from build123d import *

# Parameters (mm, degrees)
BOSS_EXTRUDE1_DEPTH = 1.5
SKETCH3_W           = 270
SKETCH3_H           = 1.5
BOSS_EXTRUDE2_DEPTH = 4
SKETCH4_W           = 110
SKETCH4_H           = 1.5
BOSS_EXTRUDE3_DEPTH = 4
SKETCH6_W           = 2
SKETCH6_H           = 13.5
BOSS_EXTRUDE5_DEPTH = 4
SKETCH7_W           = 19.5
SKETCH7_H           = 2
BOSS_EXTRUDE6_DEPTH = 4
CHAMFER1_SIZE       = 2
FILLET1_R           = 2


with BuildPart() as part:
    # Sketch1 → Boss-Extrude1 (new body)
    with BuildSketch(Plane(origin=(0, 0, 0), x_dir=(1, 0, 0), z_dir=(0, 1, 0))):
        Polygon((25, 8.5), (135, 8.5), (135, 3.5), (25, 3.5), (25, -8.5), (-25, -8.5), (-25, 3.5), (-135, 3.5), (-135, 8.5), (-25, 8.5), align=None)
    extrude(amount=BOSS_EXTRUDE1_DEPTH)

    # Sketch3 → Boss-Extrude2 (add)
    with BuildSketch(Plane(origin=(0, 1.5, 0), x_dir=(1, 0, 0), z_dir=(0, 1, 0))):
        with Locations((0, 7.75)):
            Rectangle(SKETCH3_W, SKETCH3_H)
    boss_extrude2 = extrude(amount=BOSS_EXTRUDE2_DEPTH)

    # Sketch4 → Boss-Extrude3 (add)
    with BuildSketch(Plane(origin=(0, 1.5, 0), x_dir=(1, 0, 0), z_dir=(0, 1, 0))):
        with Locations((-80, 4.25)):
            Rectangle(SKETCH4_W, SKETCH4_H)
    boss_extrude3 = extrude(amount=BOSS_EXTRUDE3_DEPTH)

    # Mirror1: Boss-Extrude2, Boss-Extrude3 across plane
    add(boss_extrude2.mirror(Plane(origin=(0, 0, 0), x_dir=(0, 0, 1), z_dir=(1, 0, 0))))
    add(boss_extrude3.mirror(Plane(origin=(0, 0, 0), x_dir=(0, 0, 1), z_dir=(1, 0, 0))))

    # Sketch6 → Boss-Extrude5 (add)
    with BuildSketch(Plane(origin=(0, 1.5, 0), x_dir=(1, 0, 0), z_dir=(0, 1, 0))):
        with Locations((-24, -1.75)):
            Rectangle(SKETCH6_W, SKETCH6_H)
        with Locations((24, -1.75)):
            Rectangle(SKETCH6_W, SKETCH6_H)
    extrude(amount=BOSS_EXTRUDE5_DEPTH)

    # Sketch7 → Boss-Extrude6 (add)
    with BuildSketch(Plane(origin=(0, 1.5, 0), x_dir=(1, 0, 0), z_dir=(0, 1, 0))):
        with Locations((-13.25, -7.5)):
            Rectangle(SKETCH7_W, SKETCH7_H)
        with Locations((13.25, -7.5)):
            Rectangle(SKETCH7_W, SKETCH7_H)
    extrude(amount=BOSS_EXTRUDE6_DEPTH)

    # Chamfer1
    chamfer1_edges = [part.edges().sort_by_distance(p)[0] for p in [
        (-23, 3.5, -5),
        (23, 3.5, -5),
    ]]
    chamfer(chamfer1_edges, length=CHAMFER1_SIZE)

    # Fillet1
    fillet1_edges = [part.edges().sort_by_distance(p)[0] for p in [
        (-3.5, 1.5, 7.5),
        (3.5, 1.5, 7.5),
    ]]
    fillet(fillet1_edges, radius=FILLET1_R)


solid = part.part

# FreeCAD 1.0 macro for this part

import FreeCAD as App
import Part
import Sketcher
from FreeCAD import Vector
Q = App.Units.Quantity


def edges_at(feature, points):
    """Names of the edges that pass closest to the given points."""
    edges = feature.Shape.Edges
    near = lambda p: min(range(len(edges)), key=lambda i: edges[i].distToShape(Part.Vertex(*p))[0])
    return sorted({f"Edge{near(p) + 1}" for p in points})

doc = App.newDocument("Part")
params = doc.addObject("Spreadsheet::Sheet", "Params")
for row, (alias, value) in enumerate([
    ("sketch1_width", "270 mm"),
    ("sketch1_width2", "110 mm"),
    ("sketch1_height", "5 mm"),
    ("sketch1_height2", "12 mm"),
    ("pad1_length", "1.5 mm"),
    ("sketch2_width", "270 mm"),
    ("sketch2_height", "1.5 mm"),
    ("pad2_length", "4 mm"),
    ("sketch3_width", "110 mm"),
    ("sketch3_height", "1.5 mm"),
    ("pad3_length", "4 mm"),
    ("sketch4_width", "2 mm"),
    ("sketch4_height", "13.5 mm"),
    ("pad4_length", "4 mm"),
    ("sketch5_height", "2 mm"),
    ("sketch5_width", "19.5 mm"),
    ("pad5_length", "4 mm"),
    ("chamfer_size", "2 mm"),
    ("fillet_radius", "2 mm"),
], start=1):
    params.set(f"A{row}", alias)
    params.set(f"B{row}", "=" + value)
    params.setAlias(f"B{row}", alias)

body = doc.addObject("PartDesign::Body", "Body")

# Sketch on XZ plane
sketch1 = doc.addObject("Sketcher::SketchObject", "Sketch")
body.addObject(sketch1)
sketch1.AttachmentSupport = (doc.XZ_Plane, [""])
sketch1.MapMode = "FlatFace"
sketch1.addGeometry([
    Part.LineSegment(Vector(135, -8, 0), Vector(-135, -8, 0)),  # 0
    Part.LineSegment(Vector(-135, -8, 0), Vector(-135, -4, 0)),  # 1
    Part.LineSegment(Vector(-135, -4, 0), Vector(-25, -4, 0)),  # 2
    Part.LineSegment(Vector(-25, -4, 0), Vector(-25, 8, 0)),  # 3
    Part.LineSegment(Vector(-25, 8, 0), Vector(25, 8, 0)),  # 4
    Part.LineSegment(Vector(25, 8, 0), Vector(25, -4, 0)),  # 5
    Part.LineSegment(Vector(25, -4, 0), Vector(135, -4, 0)),  # 6
    Part.LineSegment(Vector(135, -4, 0), Vector(135, -8, 0)),  # 7
], False)
sketch1.addConstraint([
    Sketcher.Constraint("Coincident", 0, 2, 1, 1),
    Sketcher.Constraint("Coincident", 1, 2, 2, 1),
    Sketcher.Constraint("Coincident", 2, 2, 3, 1),
    Sketcher.Constraint("Coincident", 3, 2, 4, 1),
    Sketcher.Constraint("Coincident", 4, 2, 5, 1),
    Sketcher.Constraint("Coincident", 5, 2, 6, 1),
    Sketcher.Constraint("Coincident", 6, 2, 7, 1),
    Sketcher.Constraint("Coincident", 7, 2, 0, 1),
    Sketcher.Constraint("Horizontal", 0),
    Sketcher.Constraint("Vertical", 1),
    Sketcher.Constraint("Horizontal", 2),
    Sketcher.Constraint("Vertical", 3),
    Sketcher.Constraint("Horizontal", 4),
    Sketcher.Constraint("Vertical", 5),
    Sketcher.Constraint("Horizontal", 6),
    Sketcher.Constraint("Vertical", 7),
    Sketcher.Constraint("Symmetric", 2, 2, 5, 2, -2),
    Sketcher.Constraint("Equal", 2, 6),
    Sketcher.Constraint("DistanceX", 0, 2, 0, 1, Q("270 mm")),
    Sketcher.Constraint("DistanceX", 2, 1, 2, 2, Q("110 mm")),
    Sketcher.Constraint("DistanceY", 1, 1, 1, 2, Q("5 mm")),
    Sketcher.Constraint("DistanceY", 3, 1, 3, 2, Q("12 mm")),
    Sketcher.Constraint("DistanceY", 0, 2, -1, 1, Q("8.5 mm")),
])
sketch1.setExpression("Constraints[18]", "Params.sketch1_width")
sketch1.setExpression("Constraints[19]", "Params.sketch1_width2")
sketch1.setExpression("Constraints[20]", "Params.sketch1_height")
sketch1.setExpression("Constraints[21]", "Params.sketch1_height2")
pad1 = doc.addObject("PartDesign::Pad", "Pad")
body.addObject(pad1)
pad1.Profile = sketch1
pad1.setExpression("Length", "Params.pad1_length")
pad1.Reversed = True

# Sketch on XZ plane
sketch2 = doc.addObject("Sketcher::SketchObject", "Sketch001")
body.addObject(sketch2)
sketch2.AttachmentSupport = (doc.XZ_Plane, [""])
sketch2.MapMode = "FlatFace"
sketch2.AttachmentOffset = App.Placement(Vector(0, 0, -1.5), App.Rotation())
sketch2.addGeometry([
    Part.LineSegment(Vector(-135, -8.5, 0), Vector(-135, -7, 0)),
    Part.LineSegment(Vector(-135, -7, 0), Vector(135, -7, 0)),
    Part.LineSegment(Vector(135, -7, 0), Vector(135, -8.5, 0)),
    Part.LineSegment(Vector(135, -8.5, 0), Vector(-135, -8.5, 0)),
], False)
sketch2.addConstraint([
    Sketcher.Constraint("Coincident", 0, 2, 1, 1),
    Sketcher.Constraint("Coincident", 1, 2, 2, 1),
    Sketcher.Constraint("Coincident", 2, 2, 3, 1),
    Sketcher.Constraint("Coincident", 3, 2, 0, 1),
    Sketcher.Constraint("Vertical", 0),
    Sketcher.Constraint("Horizontal", 1),
    Sketcher.Constraint("Vertical", 2),
    Sketcher.Constraint("Horizontal", 3),
    Sketcher.Constraint("DistanceX", 1, 1, 1, 2, Q("270 mm")),
    Sketcher.Constraint("DistanceY", 0, 1, 0, 2, Q("1.5 mm")),
    Sketcher.Constraint("DistanceX", 0, 2, -1, 1, Q("135 mm")),
    Sketcher.Constraint("DistanceY", 0, 2, -1, 1, Q("7 mm")),
])
sketch2.setExpression("Constraints[8]", "Params.sketch2_width")
sketch2.setExpression("Constraints[9]", "Params.sketch2_height")
pad2 = doc.addObject("PartDesign::Pad", "Pad001")
body.addObject(pad2)
pad2.Profile = sketch2
pad2.setExpression("Length", "Params.pad2_length")
pad2.Reversed = True

# Sketch on XZ plane
sketch3 = doc.addObject("Sketcher::SketchObject", "Sketch002")
body.addObject(sketch3)
sketch3.AttachmentSupport = (doc.XZ_Plane, [""])
sketch3.MapMode = "FlatFace"
sketch3.AttachmentOffset = App.Placement(Vector(0, 0, -1.5), App.Rotation())
sketch3.addGeometry([
    Part.LineSegment(Vector(-135, -5, 0), Vector(-135, -3.5, 0)),
    Part.LineSegment(Vector(-135, -3.5, 0), Vector(-25, -3.5, 0)),
    Part.LineSegment(Vector(-25, -3.5, 0), Vector(-25, -5, 0)),
    Part.LineSegment(Vector(-25, -5, 0), Vector(-135, -5, 0)),
], False)
sketch3.addConstraint([
    Sketcher.Constraint("Coincident", 0, 2, 1, 1),
    Sketcher.Constraint("Coincident", 1, 2, 2, 1),
    Sketcher.Constraint("Coincident", 2, 2, 3, 1),
    Sketcher.Constraint("Coincident", 3, 2, 0, 1),
    Sketcher.Constraint("Vertical", 0),
    Sketcher.Constraint("Horizontal", 1),
    Sketcher.Constraint("Vertical", 2),
    Sketcher.Constraint("Horizontal", 3),
    Sketcher.Constraint("DistanceX", 1, 1, 1, 2, Q("110 mm")),
    Sketcher.Constraint("DistanceY", 0, 1, 0, 2, Q("1.5 mm")),
    Sketcher.Constraint("DistanceX", 0, 2, -1, 1, Q("135 mm")),
    Sketcher.Constraint("DistanceY", 2, 2, -1, 1, Q("5 mm")),
])
sketch3.setExpression("Constraints[8]", "Params.sketch3_width")
sketch3.setExpression("Constraints[9]", "Params.sketch3_height")
pad3 = doc.addObject("PartDesign::Pad", "Pad002")
body.addObject(pad3)
pad3.Profile = sketch3
pad3.setExpression("Length", "Params.pad3_length")
pad3.Reversed = True
doc.recompute()

mirrored = doc.addObject("PartDesign::Mirrored", "Mirrored")
body.addObject(mirrored)
mirrored.Originals = [pad2, pad3]
mirrored.MirrorPlane = (doc.YZ_Plane, [""])
body.Tip = mirrored

# Sketch on XZ plane
sketch4 = doc.addObject("Sketcher::SketchObject", "Sketch003")
body.addObject(sketch4)
sketch4.AttachmentSupport = (doc.XZ_Plane, [""])
sketch4.MapMode = "FlatFace"
sketch4.AttachmentOffset = App.Placement(Vector(0, 0, -1.5), App.Rotation())
sketch4.addGeometry([
    Part.LineSegment(Vector(-25, -5, 0), Vector(-25, 8.5, 0)),  # 0
    Part.LineSegment(Vector(-25, 8.5, 0), Vector(-23, 8.5, 0)),  # 1
    Part.LineSegment(Vector(-23, 8.5, 0), Vector(-23, -5, 0)),  # 2
    Part.LineSegment(Vector(-23, -5, 0), Vector(-25, -5, 0)),  # 3
    Part.LineSegment(Vector(23, -5, 0), Vector(23, 8.5, 0)),  # 4
    Part.LineSegment(Vector(23, 8.5, 0), Vector(25, 8.5, 0)),  # 5
    Part.LineSegment(Vector(25, 8.5, 0), Vector(25, -5, 0)),  # 6
    Part.LineSegment(Vector(25, -5, 0), Vector(23, -5, 0)),  # 7
], False)
sketch4.addConstraint([
    Sketcher.Constraint("Coincident", 0, 2, 1, 1),
    Sketcher.Constraint("Coincident", 1, 2, 2, 1),
    Sketcher.Constraint("Coincident", 2, 2, 3, 1),
    Sketcher.Constraint("Coincident", 3, 2, 0, 1),
    Sketcher.Constraint("Coincident", 4, 2, 5, 1),
    Sketcher.Constraint("Coincident", 5, 2, 6, 1),
    Sketcher.Constraint("Coincident", 6, 2, 7, 1),
    Sketcher.Constraint("Coincident", 7, 2, 4, 1),
    Sketcher.Constraint("Vertical", 0),
    Sketcher.Constraint("Horizontal", 1),
    Sketcher.Constraint("Vertical", 2),
    Sketcher.Constraint("Horizontal", 3),
    Sketcher.Constraint("Vertical", 4),
    Sketcher.Constraint("Horizontal", 5),
    Sketcher.Constraint("Vertical", 6),
    Sketcher.Constraint("Horizontal", 7),
    Sketcher.Constraint("Symmetric", 1, 2, 4, 2, -2),
    Sketcher.Constraint("Symmetric", 3, 2, 6, 2, -2),
    Sketcher.Constraint("DistanceX", 1, 1, 1, 2, Q("2 mm")),
    Sketcher.Constraint("DistanceY", 0, 1, 0, 2, Q("13.5 mm")),
    Sketcher.Constraint("DistanceX", 0, 2, -1, 1, Q("25 mm")),
    Sketcher.Constraint("DistanceY", 2, 2, -1, 1, Q("5 mm")),
])
sketch4.setExpression("Constraints[18]", "Params.sketch4_width")
sketch4.setExpression("Constraints[19]", "Params.sketch4_height")
pad4 = doc.addObject("PartDesign::Pad", "Pad003")
body.addObject(pad4)
pad4.Profile = sketch4
pad4.setExpression("Length", "Params.pad4_length")
pad4.Reversed = True

# Sketch on XZ plane
sketch5 = doc.addObject("Sketcher::SketchObject", "Sketch004")
body.addObject(sketch5)
sketch5.AttachmentSupport = (doc.XZ_Plane, [""])
sketch5.MapMode = "FlatFace"
sketch5.AttachmentOffset = App.Placement(Vector(0, 0, -1.5), App.Rotation())
sketch5.addGeometry([
    Part.LineSegment(Vector(-23, 6.5, 0), Vector(-23, 8.5, 0)),  # 0
    Part.LineSegment(Vector(-23, 8.5, 0), Vector(-3.5, 8.5, 0)),  # 1
    Part.LineSegment(Vector(-3.5, 8.5, 0), Vector(-3.5, 6.5, 0)),  # 2
    Part.LineSegment(Vector(-3.5, 6.5, 0), Vector(-23, 6.5, 0)),  # 3
    Part.LineSegment(Vector(3.5, 6.5, 0), Vector(3.5, 8.5, 0)),  # 4
    Part.LineSegment(Vector(3.5, 8.5, 0), Vector(23, 8.5, 0)),  # 5
    Part.LineSegment(Vector(23, 8.5, 0), Vector(23, 6.5, 0)),  # 6
    Part.LineSegment(Vector(23, 6.5, 0), Vector(3.5, 6.5, 0)),  # 7
], False)
sketch5.addConstraint([
    Sketcher.Constraint("Coincident", 0, 2, 1, 1),
    Sketcher.Constraint("Coincident", 1, 2, 2, 1),
    Sketcher.Constraint("Coincident", 2, 2, 3, 1),
    Sketcher.Constraint("Coincident", 3, 2, 0, 1),
    Sketcher.Constraint("Coincident", 4, 2, 5, 1),
    Sketcher.Constraint("Coincident", 5, 2, 6, 1),
    Sketcher.Constraint("Coincident", 6, 2, 7, 1),
    Sketcher.Constraint("Coincident", 7, 2, 4, 1),
    Sketcher.Constraint("Vertical", 0),
    Sketcher.Constraint("Horizontal", 1),
    Sketcher.Constraint("Vertical", 2),
    Sketcher.Constraint("Horizontal", 3),
    Sketcher.Constraint("Vertical", 4),
    Sketcher.Constraint("Horizontal", 5),
    Sketcher.Constraint("Vertical", 6),
    Sketcher.Constraint("Horizontal", 7),
    Sketcher.Constraint("Symmetric", 1, 2, 4, 2, -2),
    Sketcher.Constraint("Symmetric", 3, 2, 6, 2, -2),
    Sketcher.Constraint("DistanceY", 0, 1, 0, 2, Q("2 mm")),
    Sketcher.Constraint("DistanceX", 1, 1, 1, 2, Q("19.5 mm")),
    Sketcher.Constraint("DistanceX", 0, 2, -1, 1, Q("23 mm")),
    Sketcher.Constraint("DistanceY", -1, 1, 0, 2, Q("8.5 mm")),
])
sketch5.setExpression("Constraints[18]", "Params.sketch5_height")
sketch5.setExpression("Constraints[19]", "Params.sketch5_width")
pad5 = doc.addObject("PartDesign::Pad", "Pad004")
body.addObject(pad5)
pad5.Profile = sketch5
pad5.setExpression("Length", "Params.pad5_length")
pad5.Reversed = True
doc.recompute()

chamfer = doc.addObject("PartDesign::Chamfer", "Chamfer")
body.addObject(chamfer)
chamfer.Base = (pad5, edges_at(pad5, [(-23, 3.5, -5), (23, 3.5, -5)]))
chamfer.setExpression("Size", "Params.chamfer_size")
doc.recompute()

fillet = doc.addObject("PartDesign::Fillet", "Fillet")
body.addObject(fillet)
fillet.Base = (chamfer, edges_at(chamfer, [(-3.5, 1.5, 7.5), (3.5, 1.5, 7.5)]))
fillet.setExpression("Radius", "Params.fillet_radius")

doc.recompute()
